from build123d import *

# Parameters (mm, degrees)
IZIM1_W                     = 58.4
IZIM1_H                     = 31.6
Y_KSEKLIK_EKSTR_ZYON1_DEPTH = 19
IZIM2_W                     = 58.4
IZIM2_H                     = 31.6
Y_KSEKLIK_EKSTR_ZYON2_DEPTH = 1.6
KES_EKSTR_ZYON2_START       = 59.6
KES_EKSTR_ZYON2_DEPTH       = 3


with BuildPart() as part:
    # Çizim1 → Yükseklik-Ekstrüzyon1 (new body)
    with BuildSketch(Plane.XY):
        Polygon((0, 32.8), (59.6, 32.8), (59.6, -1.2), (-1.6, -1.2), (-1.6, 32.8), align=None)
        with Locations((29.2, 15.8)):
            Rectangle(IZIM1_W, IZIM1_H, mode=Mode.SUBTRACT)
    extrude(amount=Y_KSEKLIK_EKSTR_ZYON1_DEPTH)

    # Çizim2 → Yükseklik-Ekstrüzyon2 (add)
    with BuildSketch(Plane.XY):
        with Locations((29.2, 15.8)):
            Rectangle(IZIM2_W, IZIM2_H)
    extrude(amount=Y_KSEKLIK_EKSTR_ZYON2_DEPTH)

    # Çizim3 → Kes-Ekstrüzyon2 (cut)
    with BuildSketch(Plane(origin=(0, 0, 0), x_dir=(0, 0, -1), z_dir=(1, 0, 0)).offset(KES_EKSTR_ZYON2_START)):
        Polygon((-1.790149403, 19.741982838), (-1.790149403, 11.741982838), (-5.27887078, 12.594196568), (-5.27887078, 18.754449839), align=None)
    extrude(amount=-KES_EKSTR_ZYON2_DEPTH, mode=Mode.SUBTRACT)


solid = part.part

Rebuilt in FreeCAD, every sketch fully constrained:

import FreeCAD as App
import Part
import Sketcher

doc = App.newDocument("Part")
body = doc.addObject("PartDesign::Body", "Body")

sketch1 = body.newObject("Sketcher::SketchObject", "Sketch")
sketch1.AttachmentSupport = (doc.getObject("XY_Plane"), [""])
sketch1.MapMode = "FlatFace"
sketch1.addGeometry(Part.LineSegment(App.Vector(60, 33, 0), App.Vector(-2, 33, 0)), False)
sketch1.addGeometry(Part.LineSegment(App.Vector(-2, 33, 0), App.Vector(-2, -1, 0)), False)
sketch1.addGeometry(Part.LineSegment(App.Vector(-2, -1, 0), App.Vector(60, -1, 0)), False)
sketch1.addGeometry(Part.LineSegment(App.Vector(60, -1, 0), App.Vector(60, 33, 0)), False)
sketch1.addGeometry(Part.LineSegment(App.Vector(0, 0, 0), App.Vector(0, 32, 0)), False)
sketch1.addGeometry(Part.LineSegment(App.Vector(0, 32, 0), App.Vector(58, 32, 0)), False)
sketch1.addGeometry(Part.LineSegment(App.Vector(58, 32, 0), App.Vector(58, 0, 0)), False)
sketch1.addGeometry(Part.LineSegment(App.Vector(58, 0, 0), App.Vector(0, 0, 0)), False)
sketch1.addConstraint(Sketcher.Constraint("Coincident", 0, 2, 1, 1))
sketch1.addConstraint(Sketcher.Constraint("Coincident", 1, 2, 2, 1))
sketch1.addConstraint(Sketcher.Constraint("Coincident", 2, 2, 3, 1))
sketch1.addConstraint(Sketcher.Constraint("Coincident", 3, 2, 0, 1))
sketch1.addConstraint(Sketcher.Constraint("Coincident", 4, 2, 5, 1))
sketch1.addConstraint(Sketcher.Constraint("Coincident", 5, 2, 6, 1))
sketch1.addConstraint(Sketcher.Constraint("Coincident", 6, 2, 7, 1))
sketch1.addConstraint(Sketcher.Constraint("Coincident", 7, 2, 4, 1))
sketch1.addConstraint(Sketcher.Constraint("Horizontal", 0))
sketch1.addConstraint(Sketcher.Constraint("Vertical", 1))
sketch1.addConstraint(Sketcher.Constraint("Horizontal", 2))
sketch1.addConstraint(Sketcher.Constraint("Vertical", 3))
sketch1.addConstraint(Sketcher.Constraint("Vertical", 4))
sketch1.addConstraint(Sketcher.Constraint("Horizontal", 5))
sketch1.addConstraint(Sketcher.Constraint("Vertical", 6))
sketch1.addConstraint(Sketcher.Constraint("Horizontal", 7))
sketch1.addConstraint(Sketcher.Constraint("Coincident", 7, 2, -1, 1))
sketch1.addConstraint(Sketcher.Constraint("DistanceY", 1, 2, 1, 1, 34.0))
sketch1.addConstraint(Sketcher.Constraint("DistanceX", 0, 2, 0, 1, 61.2))
sketch1.addConstraint(Sketcher.Constraint("DistanceX", 5, 1, 5, 2, 58.4))
sketch1.addConstraint(Sketcher.Constraint("DistanceY", 4, 1, 4, 2, 31.6))
sketch1.addConstraint(Sketcher.Constraint("DistanceX", 0, 2, 5, 2, 60.0))
sketch1.addConstraint(Sketcher.Constraint("DistanceY", -1, 1, 0, 2, 32.8))
pad1 = body.newObject("PartDesign::Pad", "Pad")
pad1.Profile = sketch1
pad1.Length = 19

sketch2 = body.newObject("Sketcher::SketchObject", "Sketch001")
sketch2.AttachmentSupport = (doc.getObject("XY_Plane"), [""])
sketch2.MapMode = "FlatFace"
sketch2.addGeometry(Part.LineSegment(App.Vector(0, 32, 0), App.Vector(0, 0, 0)), False)
sketch2.addGeometry(Part.LineSegment(App.Vector(0, 0, 0), App.Vector(58, 0, 0)), False)
sketch2.addGeometry(Part.LineSegment(App.Vector(58, 0, 0), App.Vector(58, 32, 0)), False)
sketch2.addGeometry(Part.LineSegment(App.Vector(58, 32, 0), App.Vector(0, 32, 0)), False)
sketch2.addConstraint(Sketcher.Constraint("Coincident", 0, 2, 1, 1))
sketch2.addConstraint(Sketcher.Constraint("Coincident", 1, 2, 2, 1))
sketch2.addConstraint(Sketcher.Constraint("Coincident", 2, 2, 3, 1))
sketch2.addConstraint(Sketcher.Constraint("Coincident", 3, 2, 0, 1))
sketch2.addConstraint(Sketcher.Constraint("Vertical", 0))
sketch2.addConstraint(Sketcher.Constraint("Horizontal", 1))
sketch2.addConstraint(Sketcher.Constraint("Vertical", 2))
sketch2.addConstraint(Sketcher.Constraint("Horizontal", 3))
sketch2.addConstraint(Sketcher.Constraint("Coincident", 0, 2, -1, 1))
sketch2.addConstraint(Sketcher.Constraint("DistanceX", 1, 1, 1, 2, 58.4))
sketch2.addConstraint(Sketcher.Constraint("DistanceY", 0, 2, 0, 1, 31.6))
pad2 = body.newObject("PartDesign::Pad", "Pad001")
pad2.Profile = sketch2
pad2.Length = 1.6

sketch3 = body.newObject("Sketcher::SketchObject", "Sketch002")
sketch3.AttachmentSupport = (doc.getObject("YZ_Plane"), [""])
sketch3.MapMode = "FlatFace"
sketch3.AttachmentOffset = App.Placement(App.Vector(0, 0, 59.6), App.Rotation())
sketch3.addGeometry(Part.LineSegment(App.Vector(11.7, 1.8, 0), App.Vector(19.7, 1.8, 0)), False)
sketch3.addGeometry(Part.LineSegment(App.Vector(19.7, 1.8, 0), App.Vector(18.8, 5.3, 0)), False)
sketch3.addGeometry(Part.LineSegment(App.Vector(18.8, 5.3, 0), App.Vector(12.6, 5.3, 0)), False)
sketch3.addGeometry(Part.LineSegment(App.Vector(12.6, 5.3, 0), App.Vector(11.7, 1.8, 0)), False)
sketch3.addConstraint(Sketcher.Constraint("Coincident", 0, 2, 1, 1))
sketch3.addConstraint(Sketcher.Constraint("Coincident", 1, 2, 2, 1))
sketch3.addConstraint(Sketcher.Constraint("Coincident", 2, 2, 3, 1))
sketch3.addConstraint(Sketcher.Constraint("Coincident", 3, 2, 0, 1))
sketch3.addConstraint(Sketcher.Constraint("Horizontal", 0))
sketch3.addConstraint(Sketcher.Constraint("Horizontal", 2))
sketch3.addConstraint(Sketcher.Constraint("DistanceX", 0, 1, 0, 2, 8.0))
sketch3.addConstraint(Sketcher.Constraint("Distance", 3, 3.591301))
sketch3.addConstraint(Sketcher.Constraint("DistanceX", 2, 2, 2, 1, 6.160253))
sketch3.addConstraint(Sketcher.Constraint("DistanceY", -1, 1, 0, 2, 1.790149))
sketch3.addConstraint(Sketcher.Constraint("DistanceX", -1, 1, 1, 2, 18.75445))
sketch3.addConstraint(Sketcher.Constraint("DistanceY", -1, 1, 1, 2, 5.278871))
pocket1 = body.newObject("PartDesign::Pocket", "Pocket")
pocket1.Profile = sketch3
pocket1.Length = 3

doc.recompute()
